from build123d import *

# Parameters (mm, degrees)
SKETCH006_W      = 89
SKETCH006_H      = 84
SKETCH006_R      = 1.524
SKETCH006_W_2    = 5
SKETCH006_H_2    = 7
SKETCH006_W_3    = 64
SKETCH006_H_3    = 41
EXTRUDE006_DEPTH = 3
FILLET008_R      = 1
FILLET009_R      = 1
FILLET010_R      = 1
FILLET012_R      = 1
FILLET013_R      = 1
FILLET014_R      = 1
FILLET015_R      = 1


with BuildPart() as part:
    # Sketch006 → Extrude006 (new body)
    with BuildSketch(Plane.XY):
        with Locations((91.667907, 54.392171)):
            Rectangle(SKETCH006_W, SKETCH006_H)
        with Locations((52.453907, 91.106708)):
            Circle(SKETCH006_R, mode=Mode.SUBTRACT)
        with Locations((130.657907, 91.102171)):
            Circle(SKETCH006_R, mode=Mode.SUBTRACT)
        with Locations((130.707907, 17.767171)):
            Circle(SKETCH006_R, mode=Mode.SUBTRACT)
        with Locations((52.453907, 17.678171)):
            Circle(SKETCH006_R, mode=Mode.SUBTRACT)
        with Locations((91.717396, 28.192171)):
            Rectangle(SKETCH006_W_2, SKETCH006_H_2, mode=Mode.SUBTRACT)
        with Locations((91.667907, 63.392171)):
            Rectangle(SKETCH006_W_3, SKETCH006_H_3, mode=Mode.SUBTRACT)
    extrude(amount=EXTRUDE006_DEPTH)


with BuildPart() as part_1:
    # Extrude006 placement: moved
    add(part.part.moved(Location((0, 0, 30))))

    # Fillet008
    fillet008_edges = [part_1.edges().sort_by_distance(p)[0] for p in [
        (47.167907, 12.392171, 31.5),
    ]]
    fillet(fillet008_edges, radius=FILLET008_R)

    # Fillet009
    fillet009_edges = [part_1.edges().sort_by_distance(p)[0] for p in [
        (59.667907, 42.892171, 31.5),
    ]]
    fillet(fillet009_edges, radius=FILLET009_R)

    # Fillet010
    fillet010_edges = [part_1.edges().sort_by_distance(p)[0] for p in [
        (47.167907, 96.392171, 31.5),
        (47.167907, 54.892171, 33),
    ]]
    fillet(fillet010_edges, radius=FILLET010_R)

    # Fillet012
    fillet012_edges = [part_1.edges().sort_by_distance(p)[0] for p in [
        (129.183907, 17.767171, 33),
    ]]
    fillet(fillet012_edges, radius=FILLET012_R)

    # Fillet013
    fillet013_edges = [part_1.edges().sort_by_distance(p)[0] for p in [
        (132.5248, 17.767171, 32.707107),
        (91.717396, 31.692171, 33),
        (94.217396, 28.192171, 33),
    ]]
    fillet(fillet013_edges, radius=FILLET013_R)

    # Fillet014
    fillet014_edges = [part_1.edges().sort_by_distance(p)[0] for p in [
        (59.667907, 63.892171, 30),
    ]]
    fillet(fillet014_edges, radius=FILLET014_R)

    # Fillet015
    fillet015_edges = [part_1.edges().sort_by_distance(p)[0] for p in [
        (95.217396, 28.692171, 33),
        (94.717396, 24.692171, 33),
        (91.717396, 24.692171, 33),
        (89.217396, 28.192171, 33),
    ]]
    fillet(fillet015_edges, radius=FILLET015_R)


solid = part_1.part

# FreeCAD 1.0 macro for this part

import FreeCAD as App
import Part
import Sketcher


def edges_at(feature, points):
    """Names of the edges that pass closest to the given points."""
    edges = feature.Shape.Edges
    near = lambda p: min(range(len(edges)), key=lambda i: edges[i].distToShape(Part.Vertex(*p))[0])
    return sorted({f"Edge{near(p) + 1}" for p in points})

doc = App.newDocument("Part")
body = doc.addObject("PartDesign::Body", "Body")

# Sketch on XY plane
sketch1 = body.newObject("Sketcher::SketchObject", "Sketch")
sketch1.AttachmentSupport = (doc.getObject("XY_Plane"), [""])
sketch1.MapMode = "FlatFace"
sketch1.addGeometry([
    Part.LineSegment(App.Vector(47.2, 96.4, 0), App.Vector(47.2, 12.4, 0)),  # 0
    Part.LineSegment(App.Vector(47.2, 12.4, 0), App.Vector(136.2, 12.4, 0)),  # 1
    Part.LineSegment(App.Vector(136.2, 12.4, 0), App.Vector(136.2, 96.4, 0)),  # 2
    Part.LineSegment(App.Vector(136.2, 96.4, 0), App.Vector(47.2, 96.4, 0)),  # 3
    Part.Circle(App.Vector(52.5, 17.7, 0), App.Vector(0, 0, 1), 1.5),  # 4
    Part.LineSegment(App.Vector(94.2, 24.7, 0), App.Vector(89.2, 24.7, 0)),  # 5
    Part.LineSegment(App.Vector(89.2, 24.7, 0), App.Vector(89.2, 31.7, 0)),  # 6
    Part.LineSegment(App.Vector(89.2, 31.7, 0), App.Vector(94.2, 31.7, 0)),  # 7
    Part.LineSegment(App.Vector(94.2, 31.7, 0), App.Vector(94.2, 24.7, 0)),  # 8
    Part.Circle(App.Vector(130.7, 17.8, 0), App.Vector(0, 0, 1), 1.5),  # 9
    Part.Circle(App.Vector(52.5, 91.1, 0), App.Vector(0, 0, 1), 1.5),  # 10
    Part.LineSegment(App.Vector(123.7, 42.9, 0), App.Vector(59.7, 42.9, 0)),  # 11
    Part.LineSegment(App.Vector(59.7, 42.9, 0), App.Vector(59.7, 83.9, 0)),  # 12
    Part.LineSegment(App.Vector(59.7, 83.9, 0), App.Vector(123.7, 83.9, 0)),  # 13
    Part.LineSegment(App.Vector(123.7, 83.9, 0), App.Vector(123.7, 42.9, 0)),  # 14
    Part.Circle(App.Vector(130.7, 91.1, 0), App.Vector(0, 0, 1), 1.5),  # 15
], False)
sketch1.addConstraint([
    Sketcher.Constraint("Coincident", 0, 2, 1, 1),
    Sketcher.Constraint("Coincident", 1, 2, 2, 1),
    Sketcher.Constraint("Coincident", 2, 2, 3, 1),
    Sketcher.Constraint("Coincident", 3, 2, 0, 1),
    Sketcher.Constraint("Coincident", 5, 2, 6, 1),
    Sketcher.Constraint("Coincident", 6, 2, 7, 1),
    Sketcher.Constraint("Coincident", 7, 2, 8, 1),
    Sketcher.Constraint("Coincident", 8, 2, 5, 1),
    Sketcher.Constraint("Coincident", 11, 2, 12, 1),
    Sketcher.Constraint("Coincident", 12, 2, 13, 1),
    Sketcher.Constraint("Coincident", 13, 2, 14, 1),
    Sketcher.Constraint("Coincident", 14, 2, 11, 1),
    Sketcher.Constraint("Vertical", 0),
    Sketcher.Constraint("Horizontal", 1),
    Sketcher.Constraint("Vertical", 2),
    Sketcher.Constraint("Horizontal", 3),
    Sketcher.Constraint("Horizontal", 5),
    Sketcher.Constraint("Vertical", 6),
    Sketcher.Constraint("Horizontal", 7),
    Sketcher.Constraint("Vertical", 8),
    Sketcher.Constraint("Horizontal", 11),
    Sketcher.Constraint("Vertical", 12),
    Sketcher.Constraint("Horizontal", 13),
    Sketcher.Constraint("Vertical", 14),
    Sketcher.Constraint("Equal", 4, 9),
    Sketcher.Constraint("Equal", 9, 10),
    Sketcher.Constraint("Equal", 10, 15),
    Sketcher.Constraint("Vertical", 4, 3, 10, 3),
    Sketcher.Constraint("DistanceX", 1, 1, 1, 2, 89.0),
    Sketcher.Constraint("DistanceX", 5, 2, 5, 1, 5.0),
    Sketcher.Constraint("DistanceX", 11, 2, 11, 1, 64.0),
    Sketcher.Constraint("DistanceY", 0, 2, 0, 1, 84.0),
    Sketcher.Constraint("DistanceY", 6, 1, 6, 2, 7.0),
    Sketcher.Constraint("DistanceY", 12, 1, 12, 2, 41.0),
    Sketcher.Constraint("Diameter", 4, 3.048),
    Sketcher.Constraint("DistanceY", 0, 2, 5, 2, 12.3),
    Sketcher.Constraint("DistanceY", 6, 2, 11, 2, 11.2),
    Sketcher.Constraint("DistanceX", 0, 2, 11, 2, 12.5),
    Sketcher.Constraint("DistanceX", 15, 3, 9, 3, 0.05),
    Sketcher.Constraint("DistanceX", 0, 2, 9, 3, 83.54),
    Sketcher.Constraint("DistanceY", 0, 2, 15, 3, 78.71),
    Sketcher.Constraint("DistanceX", 4, 3, 9, 3, 78.254),
    Sketcher.Constraint("DistanceY", 4, 3, 9, 3, 0.089),
    Sketcher.Constraint("DistanceY", 9, 3, 15, 3, 73.335),
    Sketcher.Constraint("DistanceY", -1, 1, 4, 3, 17.678171),
    Sketcher.Constraint("DistanceX", 4, 3, 5, 2, 36.763489),
    Sketcher.Constraint("DistanceX", -1, 1, 4, 3, 52.453907),
    Sketcher.Constraint("DistanceY", -1, 1, 10, 3, 91.106708),
])
pad1 = body.newObject("PartDesign::Pad", "Pad")
pad1.Profile = sketch1
pad1.Length = 3
body2 = doc.addObject("PartDesign::Body", "Body001")
doc.recompute()

body.Placement = App.Placement(App.Vector(0, 0, 30), App.Rotation(App.Vector(0, 0, 1), 0))
boolean = body2.newObject("PartDesign::Boolean", "Boolean")
boolean.Type = "Fuse"
boolean.addObjects([body])
doc.recompute()

fillet = body2.newObject("PartDesign::Fillet", "Fillet")
fillet.Base = (boolean, edges_at(boolean, [(47.168, 12.392, 31.5)]))
fillet.Radius = 1
doc.recompute()

fillet2 = body2.newObject("PartDesign::Fillet", "Fillet001")
fillet2.Base = (fillet, edges_at(fillet, [(59.668, 42.892, 31.5)]))
fillet2.Radius = 1
doc.recompute()

fillet3 = body2.newObject("PartDesign::Fillet", "Fillet002")
fillet3.Base = (fillet2, edges_at(fillet2, [(47.168, 96.392, 31.5), (47.168, 54.892, 33)]))
fillet3.Radius = 1
doc.recompute()

fillet4 = body2.newObject("PartDesign::Fillet", "Fillet003")
fillet4.Base = (fillet3, edges_at(fillet3, [(129.184, 17.767, 33)]))
fillet4.Radius = 1
doc.recompute()

fillet5 = body2.newObject("PartDesign::Fillet", "Fillet004")
fillet5.Base = (fillet4, edges_at(fillet4, [(132.525, 17.767, 32.707), (91.717, 31.692, 33), (94.217, 28.192, 33)]))
fillet5.Radius = 1
doc.recompute()

fillet6 = body2.newObject("PartDesign::Fillet", "Fillet005")
fillet6.Base = (fillet5, edges_at(fillet5, [(59.668, 63.892, 30)]))
fillet6.Radius = 1
doc.recompute()

fillet7 = body2.newObject("PartDesign::Fillet", "Fillet006")
fillet7.Base = (fillet6, edges_at(fillet6, [
    (95.217, 28.692, 33),
    (92.217, 24.692, 33),
    (92.217, 24.692, 33),
    (89.217, 28.692, 33),
]))
fillet7.Radius = 1

doc.recompute()
